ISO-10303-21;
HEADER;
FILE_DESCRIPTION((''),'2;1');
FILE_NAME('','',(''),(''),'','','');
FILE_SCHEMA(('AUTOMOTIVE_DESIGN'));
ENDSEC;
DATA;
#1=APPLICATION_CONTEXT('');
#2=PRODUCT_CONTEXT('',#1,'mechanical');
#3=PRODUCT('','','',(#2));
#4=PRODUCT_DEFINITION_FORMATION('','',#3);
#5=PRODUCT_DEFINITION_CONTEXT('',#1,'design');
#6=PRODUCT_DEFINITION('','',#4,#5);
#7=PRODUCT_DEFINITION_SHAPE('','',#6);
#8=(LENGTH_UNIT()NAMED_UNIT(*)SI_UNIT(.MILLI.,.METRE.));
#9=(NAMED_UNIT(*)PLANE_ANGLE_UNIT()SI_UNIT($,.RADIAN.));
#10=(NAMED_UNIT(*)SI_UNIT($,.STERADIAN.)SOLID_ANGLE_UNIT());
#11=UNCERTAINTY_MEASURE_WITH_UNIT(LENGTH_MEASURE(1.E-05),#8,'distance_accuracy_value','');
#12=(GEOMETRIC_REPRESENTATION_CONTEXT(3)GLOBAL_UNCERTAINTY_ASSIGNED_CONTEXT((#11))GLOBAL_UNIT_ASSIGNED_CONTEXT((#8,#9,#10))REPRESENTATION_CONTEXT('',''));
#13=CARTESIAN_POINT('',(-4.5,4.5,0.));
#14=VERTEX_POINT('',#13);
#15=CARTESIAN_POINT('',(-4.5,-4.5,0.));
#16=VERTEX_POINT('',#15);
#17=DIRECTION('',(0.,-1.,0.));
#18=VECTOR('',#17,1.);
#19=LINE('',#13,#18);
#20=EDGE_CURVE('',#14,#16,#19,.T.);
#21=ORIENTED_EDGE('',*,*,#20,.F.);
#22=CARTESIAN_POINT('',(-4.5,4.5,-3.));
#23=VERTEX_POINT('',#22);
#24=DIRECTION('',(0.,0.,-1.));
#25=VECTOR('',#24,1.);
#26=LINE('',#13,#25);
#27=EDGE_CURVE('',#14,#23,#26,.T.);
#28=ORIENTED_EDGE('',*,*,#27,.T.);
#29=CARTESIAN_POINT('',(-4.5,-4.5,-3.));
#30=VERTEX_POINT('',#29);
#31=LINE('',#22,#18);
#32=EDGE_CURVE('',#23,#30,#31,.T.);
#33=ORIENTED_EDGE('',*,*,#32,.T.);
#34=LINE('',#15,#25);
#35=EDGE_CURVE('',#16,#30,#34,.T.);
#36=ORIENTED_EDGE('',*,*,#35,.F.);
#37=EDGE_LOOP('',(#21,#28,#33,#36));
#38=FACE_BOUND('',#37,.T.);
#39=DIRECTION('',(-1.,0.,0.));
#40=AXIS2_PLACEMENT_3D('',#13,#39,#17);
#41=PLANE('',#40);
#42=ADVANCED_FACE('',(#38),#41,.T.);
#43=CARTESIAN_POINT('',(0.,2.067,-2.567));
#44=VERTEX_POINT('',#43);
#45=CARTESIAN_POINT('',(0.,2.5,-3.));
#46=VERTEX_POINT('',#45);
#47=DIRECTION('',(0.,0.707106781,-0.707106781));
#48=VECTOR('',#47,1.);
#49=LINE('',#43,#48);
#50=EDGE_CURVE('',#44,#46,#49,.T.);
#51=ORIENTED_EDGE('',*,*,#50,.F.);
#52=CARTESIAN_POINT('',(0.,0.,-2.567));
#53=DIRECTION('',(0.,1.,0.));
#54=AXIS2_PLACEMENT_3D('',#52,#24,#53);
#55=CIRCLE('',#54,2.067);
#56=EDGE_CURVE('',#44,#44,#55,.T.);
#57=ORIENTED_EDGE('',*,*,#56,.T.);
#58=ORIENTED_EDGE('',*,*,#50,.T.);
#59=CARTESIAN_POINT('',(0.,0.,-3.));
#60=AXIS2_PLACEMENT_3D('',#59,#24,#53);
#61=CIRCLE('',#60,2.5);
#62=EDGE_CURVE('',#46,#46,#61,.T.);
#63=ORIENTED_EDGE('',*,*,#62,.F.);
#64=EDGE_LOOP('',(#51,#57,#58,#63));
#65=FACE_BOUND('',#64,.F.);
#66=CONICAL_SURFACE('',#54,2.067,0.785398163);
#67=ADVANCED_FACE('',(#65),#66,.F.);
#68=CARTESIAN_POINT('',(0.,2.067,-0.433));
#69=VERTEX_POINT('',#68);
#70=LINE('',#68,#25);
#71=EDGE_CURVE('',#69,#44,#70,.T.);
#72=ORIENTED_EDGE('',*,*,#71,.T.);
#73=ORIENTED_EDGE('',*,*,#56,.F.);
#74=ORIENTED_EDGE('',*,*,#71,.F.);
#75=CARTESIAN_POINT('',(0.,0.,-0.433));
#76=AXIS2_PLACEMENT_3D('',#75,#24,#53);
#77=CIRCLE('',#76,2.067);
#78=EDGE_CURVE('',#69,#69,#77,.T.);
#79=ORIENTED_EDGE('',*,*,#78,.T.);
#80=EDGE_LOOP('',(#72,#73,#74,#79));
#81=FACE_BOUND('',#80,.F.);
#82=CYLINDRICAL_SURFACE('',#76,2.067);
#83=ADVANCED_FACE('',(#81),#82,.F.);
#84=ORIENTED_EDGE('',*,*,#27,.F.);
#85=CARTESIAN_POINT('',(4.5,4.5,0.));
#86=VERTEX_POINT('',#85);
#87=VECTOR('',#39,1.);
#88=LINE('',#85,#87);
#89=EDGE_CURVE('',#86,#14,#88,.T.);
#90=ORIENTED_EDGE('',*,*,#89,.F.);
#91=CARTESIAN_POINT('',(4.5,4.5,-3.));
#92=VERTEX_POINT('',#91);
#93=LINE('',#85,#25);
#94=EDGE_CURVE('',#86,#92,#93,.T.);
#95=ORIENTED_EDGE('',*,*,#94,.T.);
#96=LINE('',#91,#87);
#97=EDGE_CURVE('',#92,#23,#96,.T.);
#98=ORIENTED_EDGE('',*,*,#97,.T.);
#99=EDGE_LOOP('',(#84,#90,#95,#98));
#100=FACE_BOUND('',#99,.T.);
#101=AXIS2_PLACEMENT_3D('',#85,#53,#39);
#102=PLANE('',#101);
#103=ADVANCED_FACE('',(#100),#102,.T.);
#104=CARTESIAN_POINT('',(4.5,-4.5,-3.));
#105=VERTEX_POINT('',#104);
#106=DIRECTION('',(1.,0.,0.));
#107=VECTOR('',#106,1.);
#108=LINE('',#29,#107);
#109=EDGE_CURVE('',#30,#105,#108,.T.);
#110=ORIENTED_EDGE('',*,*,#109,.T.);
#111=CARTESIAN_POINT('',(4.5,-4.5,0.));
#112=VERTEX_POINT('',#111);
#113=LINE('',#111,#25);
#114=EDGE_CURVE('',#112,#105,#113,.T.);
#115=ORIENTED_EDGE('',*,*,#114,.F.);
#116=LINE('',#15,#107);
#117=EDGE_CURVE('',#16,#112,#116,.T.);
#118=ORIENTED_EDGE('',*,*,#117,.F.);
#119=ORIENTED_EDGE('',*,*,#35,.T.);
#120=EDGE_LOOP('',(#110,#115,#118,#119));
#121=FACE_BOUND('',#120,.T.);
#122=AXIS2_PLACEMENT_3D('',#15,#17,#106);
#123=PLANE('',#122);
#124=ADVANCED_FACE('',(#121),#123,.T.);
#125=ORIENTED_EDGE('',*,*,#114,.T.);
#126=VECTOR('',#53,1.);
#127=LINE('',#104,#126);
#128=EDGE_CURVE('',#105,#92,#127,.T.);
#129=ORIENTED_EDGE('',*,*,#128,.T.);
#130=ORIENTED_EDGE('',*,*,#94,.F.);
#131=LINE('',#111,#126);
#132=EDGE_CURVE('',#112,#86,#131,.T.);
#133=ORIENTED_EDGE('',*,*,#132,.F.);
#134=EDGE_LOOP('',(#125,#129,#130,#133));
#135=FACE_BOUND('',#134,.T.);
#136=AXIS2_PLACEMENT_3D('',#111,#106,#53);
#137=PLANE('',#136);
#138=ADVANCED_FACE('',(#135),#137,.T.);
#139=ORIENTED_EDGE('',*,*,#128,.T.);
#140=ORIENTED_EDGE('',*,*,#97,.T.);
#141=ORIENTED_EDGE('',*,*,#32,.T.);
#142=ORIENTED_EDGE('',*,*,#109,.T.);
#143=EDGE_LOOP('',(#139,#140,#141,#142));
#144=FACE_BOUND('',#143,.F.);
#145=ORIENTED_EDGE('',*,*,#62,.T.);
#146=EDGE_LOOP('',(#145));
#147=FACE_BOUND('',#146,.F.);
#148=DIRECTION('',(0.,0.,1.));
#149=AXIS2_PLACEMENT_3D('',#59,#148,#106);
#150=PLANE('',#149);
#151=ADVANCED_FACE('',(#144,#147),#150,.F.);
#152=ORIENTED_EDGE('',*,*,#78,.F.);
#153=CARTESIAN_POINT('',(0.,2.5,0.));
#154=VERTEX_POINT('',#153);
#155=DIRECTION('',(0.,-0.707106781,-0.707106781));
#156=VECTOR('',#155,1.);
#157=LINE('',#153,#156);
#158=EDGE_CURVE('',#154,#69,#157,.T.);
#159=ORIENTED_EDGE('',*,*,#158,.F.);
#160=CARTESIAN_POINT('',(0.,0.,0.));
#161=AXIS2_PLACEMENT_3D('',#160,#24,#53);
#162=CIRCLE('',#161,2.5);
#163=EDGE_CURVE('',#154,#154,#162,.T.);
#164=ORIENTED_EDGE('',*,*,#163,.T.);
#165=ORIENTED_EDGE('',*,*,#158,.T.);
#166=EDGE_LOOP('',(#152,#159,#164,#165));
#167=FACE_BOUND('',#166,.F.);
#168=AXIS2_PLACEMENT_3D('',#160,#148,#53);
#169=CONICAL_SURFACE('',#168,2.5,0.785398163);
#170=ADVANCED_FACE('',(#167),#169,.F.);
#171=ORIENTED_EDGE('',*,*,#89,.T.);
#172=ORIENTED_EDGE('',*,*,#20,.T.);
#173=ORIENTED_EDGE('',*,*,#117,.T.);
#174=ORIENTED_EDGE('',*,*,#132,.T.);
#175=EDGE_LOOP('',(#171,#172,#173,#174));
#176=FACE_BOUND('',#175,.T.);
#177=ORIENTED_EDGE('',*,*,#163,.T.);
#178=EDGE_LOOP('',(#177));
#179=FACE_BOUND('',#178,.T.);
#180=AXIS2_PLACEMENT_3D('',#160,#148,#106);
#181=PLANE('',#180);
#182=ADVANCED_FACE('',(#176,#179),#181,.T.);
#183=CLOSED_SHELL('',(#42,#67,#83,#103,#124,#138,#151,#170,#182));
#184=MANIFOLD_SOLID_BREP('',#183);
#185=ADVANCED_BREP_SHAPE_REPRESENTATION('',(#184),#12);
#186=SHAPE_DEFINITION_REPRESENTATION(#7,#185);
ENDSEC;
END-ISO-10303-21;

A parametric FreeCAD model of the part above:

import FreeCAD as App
import Part
import Sketcher
from FreeCAD import Vector


def add_polygon(sketch, points):
    """Adds a closed chain of lines whose ends are joined by coincident constraints."""
    first, n = sketch.GeometryCount, len(points)
    for a, b in zip(points, points[1:] + points[:1]):
        sketch.addGeometry(Part.LineSegment(App.Vector(*a, 0), App.Vector(*b, 0)), False)
    for i in range(n):
        sketch.addConstraint(Sketcher.Constraint("Coincident", first + i, 2, first + (i + 1) % n, 1))

doc = App.newDocument("Part")
body = doc.addObject("PartDesign::Body", "Body")

sketch1 = doc.addObject("Sketcher::SketchObject", "Sketch")
body.addObject(sketch1)
sketch1.AttachmentSupport = (doc.XY_Plane, [""])
sketch1.MapMode = "FlatFace"
add_polygon(sketch1, [(4, 4), (-4, 4), (-4, -4), (4, -4)])
sketch1.addConstraint([
    Sketcher.Constraint("Horizontal", 0),
    Sketcher.Constraint("Vertical", 1),
    Sketcher.Constraint("Horizontal", 2),
    Sketcher.Constraint("Vertical", 3),
    Sketcher.Constraint("Symmetric", 0, 2, 2, 2, -1, 1),
    Sketcher.Constraint("Equal", 2, 1),
    Sketcher.Constraint("DistanceX", 0, 2, 0, 1, 9.0),
])
pad1 = doc.addObject("PartDesign::Pad", "Pad")
body.addObject(pad1)
pad1.Profile = sketch1
pad1.Length = 3
pad1.Reversed = True

sketch2 = doc.addObject("Sketcher::SketchObject", "Sketch001")
body.addObject(sketch2)
sketch2.AttachmentSupport = (doc.YZ_Plane, [""])
sketch2.MapMode = "FlatFace"
add_polygon(sketch2, [(0, 0), (0, -3), (2.5, -3), (2.1, -2.6), (2.1, -0.4), (2.5, 0)])
sketch2.addConstraint([
    Sketcher.Constraint("Vertical", 0),
    Sketcher.Constraint("Horizontal", 1),
    Sketcher.Constraint("Vertical", 3),
    Sketcher.Constraint("Horizontal", 5),
    Sketcher.Constraint("Coincident", 5, 2, -1, 1),
    Sketcher.Constraint("Perpendicular", 2, 4),
    Sketcher.Constraint("Vertical", 1, 2, 4, 2),
    Sketcher.Constraint("Equal", 2, 4),
    Sketcher.Constraint("DistanceY", 0, 2, 0, 1, 3.0),
    Sketcher.Constraint("DistanceX", 1, 1, 1, 2, 2.5),
    Sketcher.Constraint("DistanceY", 3, 1, 3, 2, 2.134),
])
groove = doc.addObject("PartDesign::Groove", "Groove")
body.addObject(groove)
groove.Profile = sketch2
groove.ReferenceAxis = (sketch2, ["V_Axis"])
groove.Angle = 360

doc.recompute()
